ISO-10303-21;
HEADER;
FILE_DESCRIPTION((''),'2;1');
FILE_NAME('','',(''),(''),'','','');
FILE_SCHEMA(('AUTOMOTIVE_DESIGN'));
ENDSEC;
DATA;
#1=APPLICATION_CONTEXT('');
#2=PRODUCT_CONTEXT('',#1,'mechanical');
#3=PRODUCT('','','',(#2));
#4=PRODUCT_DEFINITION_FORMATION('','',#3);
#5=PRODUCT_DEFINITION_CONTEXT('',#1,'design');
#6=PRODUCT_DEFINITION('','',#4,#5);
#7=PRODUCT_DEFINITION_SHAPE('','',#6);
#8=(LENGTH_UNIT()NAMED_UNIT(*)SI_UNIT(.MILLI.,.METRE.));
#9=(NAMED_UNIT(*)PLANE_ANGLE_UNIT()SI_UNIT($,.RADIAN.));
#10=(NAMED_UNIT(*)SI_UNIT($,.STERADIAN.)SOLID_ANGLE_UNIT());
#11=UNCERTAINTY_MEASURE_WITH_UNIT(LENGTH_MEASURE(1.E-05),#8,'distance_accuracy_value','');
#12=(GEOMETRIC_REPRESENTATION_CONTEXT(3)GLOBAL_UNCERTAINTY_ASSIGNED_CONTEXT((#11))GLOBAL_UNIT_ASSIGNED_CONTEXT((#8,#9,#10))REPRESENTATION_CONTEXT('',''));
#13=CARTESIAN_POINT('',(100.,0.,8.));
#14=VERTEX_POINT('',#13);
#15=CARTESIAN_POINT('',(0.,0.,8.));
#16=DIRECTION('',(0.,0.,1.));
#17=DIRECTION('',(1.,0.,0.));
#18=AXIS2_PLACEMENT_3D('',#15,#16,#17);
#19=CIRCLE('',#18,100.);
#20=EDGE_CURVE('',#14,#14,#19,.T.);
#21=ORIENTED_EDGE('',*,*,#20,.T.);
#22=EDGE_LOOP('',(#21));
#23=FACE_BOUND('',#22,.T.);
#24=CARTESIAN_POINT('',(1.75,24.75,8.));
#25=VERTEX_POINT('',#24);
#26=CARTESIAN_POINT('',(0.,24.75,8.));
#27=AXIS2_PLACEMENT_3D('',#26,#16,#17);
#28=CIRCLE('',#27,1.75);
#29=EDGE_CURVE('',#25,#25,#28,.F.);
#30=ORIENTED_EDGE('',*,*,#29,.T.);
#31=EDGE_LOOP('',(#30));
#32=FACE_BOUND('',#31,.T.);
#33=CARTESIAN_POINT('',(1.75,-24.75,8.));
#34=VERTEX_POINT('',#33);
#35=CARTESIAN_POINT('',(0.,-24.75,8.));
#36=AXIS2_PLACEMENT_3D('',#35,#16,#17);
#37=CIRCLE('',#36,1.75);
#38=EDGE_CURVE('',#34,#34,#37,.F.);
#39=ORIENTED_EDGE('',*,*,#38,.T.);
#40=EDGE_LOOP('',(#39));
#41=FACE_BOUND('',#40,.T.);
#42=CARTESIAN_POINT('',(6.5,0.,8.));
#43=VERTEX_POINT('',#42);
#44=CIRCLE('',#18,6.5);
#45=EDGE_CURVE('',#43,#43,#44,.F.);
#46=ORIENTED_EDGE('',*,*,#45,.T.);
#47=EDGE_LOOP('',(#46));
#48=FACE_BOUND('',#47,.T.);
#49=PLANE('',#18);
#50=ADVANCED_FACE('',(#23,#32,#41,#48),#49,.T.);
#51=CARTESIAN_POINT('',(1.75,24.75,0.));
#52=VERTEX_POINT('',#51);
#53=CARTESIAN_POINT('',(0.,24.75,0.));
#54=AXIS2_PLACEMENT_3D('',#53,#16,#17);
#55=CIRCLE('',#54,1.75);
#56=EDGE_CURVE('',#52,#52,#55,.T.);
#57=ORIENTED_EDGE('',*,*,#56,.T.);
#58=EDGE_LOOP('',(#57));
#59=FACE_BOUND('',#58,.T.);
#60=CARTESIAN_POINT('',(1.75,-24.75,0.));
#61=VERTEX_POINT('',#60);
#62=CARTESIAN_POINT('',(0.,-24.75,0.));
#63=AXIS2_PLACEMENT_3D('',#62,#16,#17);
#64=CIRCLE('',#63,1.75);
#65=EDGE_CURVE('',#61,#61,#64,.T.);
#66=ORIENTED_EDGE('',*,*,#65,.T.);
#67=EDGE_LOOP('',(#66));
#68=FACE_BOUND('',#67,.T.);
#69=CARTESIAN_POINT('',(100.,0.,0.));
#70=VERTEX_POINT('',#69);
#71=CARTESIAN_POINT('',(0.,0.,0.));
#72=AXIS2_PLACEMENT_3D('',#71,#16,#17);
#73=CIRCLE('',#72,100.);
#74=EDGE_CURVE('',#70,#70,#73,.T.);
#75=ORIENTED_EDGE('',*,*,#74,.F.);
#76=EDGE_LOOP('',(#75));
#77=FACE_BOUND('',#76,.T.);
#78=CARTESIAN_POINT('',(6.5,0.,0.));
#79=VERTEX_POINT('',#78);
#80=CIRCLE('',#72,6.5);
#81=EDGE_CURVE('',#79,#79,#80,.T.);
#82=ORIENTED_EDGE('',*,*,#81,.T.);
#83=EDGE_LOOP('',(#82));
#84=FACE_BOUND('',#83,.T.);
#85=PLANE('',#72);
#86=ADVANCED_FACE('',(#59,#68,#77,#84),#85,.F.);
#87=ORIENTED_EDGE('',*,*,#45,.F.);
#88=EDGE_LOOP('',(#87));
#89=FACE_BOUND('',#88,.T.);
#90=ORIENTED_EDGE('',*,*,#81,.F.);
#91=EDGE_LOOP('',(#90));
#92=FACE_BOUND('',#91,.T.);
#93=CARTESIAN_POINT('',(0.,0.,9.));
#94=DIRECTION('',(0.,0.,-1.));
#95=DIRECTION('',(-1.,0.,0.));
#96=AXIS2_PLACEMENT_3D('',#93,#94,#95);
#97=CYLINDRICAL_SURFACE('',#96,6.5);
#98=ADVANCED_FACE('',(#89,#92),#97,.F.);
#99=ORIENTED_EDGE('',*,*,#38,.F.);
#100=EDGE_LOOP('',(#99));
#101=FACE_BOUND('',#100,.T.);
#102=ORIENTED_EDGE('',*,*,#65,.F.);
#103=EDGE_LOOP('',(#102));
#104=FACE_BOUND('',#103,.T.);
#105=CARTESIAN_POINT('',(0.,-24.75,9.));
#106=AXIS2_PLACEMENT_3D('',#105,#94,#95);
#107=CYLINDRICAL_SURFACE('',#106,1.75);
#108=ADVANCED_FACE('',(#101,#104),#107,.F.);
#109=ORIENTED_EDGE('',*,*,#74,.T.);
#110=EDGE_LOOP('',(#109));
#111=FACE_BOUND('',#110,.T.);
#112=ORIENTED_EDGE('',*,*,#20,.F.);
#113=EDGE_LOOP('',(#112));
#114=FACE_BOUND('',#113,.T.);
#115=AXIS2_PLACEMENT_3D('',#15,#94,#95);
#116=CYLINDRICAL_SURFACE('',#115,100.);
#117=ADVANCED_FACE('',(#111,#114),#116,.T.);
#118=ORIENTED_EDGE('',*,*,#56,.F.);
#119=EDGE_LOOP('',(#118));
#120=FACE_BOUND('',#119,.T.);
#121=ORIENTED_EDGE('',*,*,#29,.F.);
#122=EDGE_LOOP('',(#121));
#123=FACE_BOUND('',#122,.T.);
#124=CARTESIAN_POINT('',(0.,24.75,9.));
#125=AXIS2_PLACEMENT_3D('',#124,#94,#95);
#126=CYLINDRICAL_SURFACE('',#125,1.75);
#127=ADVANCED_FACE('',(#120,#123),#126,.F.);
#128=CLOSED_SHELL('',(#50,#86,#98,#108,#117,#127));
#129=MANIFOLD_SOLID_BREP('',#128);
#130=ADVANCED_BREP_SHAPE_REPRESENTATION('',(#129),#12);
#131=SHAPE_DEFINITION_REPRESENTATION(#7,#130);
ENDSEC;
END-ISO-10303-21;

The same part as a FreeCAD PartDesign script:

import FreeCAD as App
import Part
import Sketcher
Q = App.Units.Quantity

doc = App.newDocument("Part")
params = doc.addObject("Spreadsheet::Sheet", "Params")
for row, (alias, value) in enumerate([
    ("sketch1_diameter", "200 mm"),
    ("pad1_length", "8 mm"),
    ("sketch2_diameter", "13 mm"),
    ("sketch2_diameter2", "3.5 mm"),
    ("pocket1_length", "9 mm"),
], start=1):
    params.set(f"A{row}", alias)
    params.set(f"B{row}", "=" + value)
    params.setAlias(f"B{row}", alias)

body = doc.addObject("PartDesign::Body", "Body")

# Sketch on XY plane
sketch1 = body.newObject("Sketcher::SketchObject", "Sketch")
sketch1.AttachmentSupport = (doc.getObject("XY_Plane"), [""])
sketch1.MapMode = "FlatFace"
sketch1.addGeometry(Part.Circle(App.Vector(0, 0, 0), App.Vector(0, 0, 1), 100), False)
sketch1.addConstraint([
    Sketcher.Constraint("Coincident", 0, 3, -1, 1),
    Sketcher.Constraint("Diameter", 0, Q("200 mm")),
])
sketch1.setExpression("Constraints[1]", "Params.sketch1_diameter")
pad1 = body.newObject("PartDesign::Pad", "Pad")
pad1.Profile = sketch1
pad1.setExpression("Length", "Params.pad1_length")

# Sketch on XY plane
sketch2 = body.newObject("Sketcher::SketchObject", "Sketch001")
sketch2.AttachmentSupport = (doc.getObject("XY_Plane"), [""])
sketch2.MapMode = "FlatFace"
sketch2.addGeometry([
    Part.Circle(App.Vector(0, 24.8, 0), App.Vector(0, 0, 1), 1.8),
    Part.Circle(App.Vector(0, -24.8, 0), App.Vector(0, 0, 1), 1.8),
    Part.Circle(App.Vector(0, 0, 0), App.Vector(0, 0, 1), 6.5),
], False)
sketch2.addConstraint([
    Sketcher.Constraint("Coincident", 2, 3, -1, 1),
    Sketcher.Constraint("Equal", 0, 1),
    Sketcher.Constraint("Symmetric", 0, 3, 1, 3, -1, 1),
    Sketcher.Constraint("PointOnObject", 0, 3, -2),
    Sketcher.Constraint("Diameter", 2, Q("13 mm")),
    Sketcher.Constraint("Diameter", 0, Q("3.5 mm")),
    Sketcher.Constraint("DistanceY", 1, 3, 0, 3, Q("49.5 mm")),
])
sketch2.setExpression("Constraints[4]", "Params.sketch2_diameter")
sketch2.setExpression("Constraints[5]", "Params.sketch2_diameter2")
pocket1 = body.newObject("PartDesign::Pocket", "Pocket")
pocket1.Profile = sketch2
pocket1.setExpression("Length", "Params.pocket1_length")
pocket1.Reversed = True

doc.recompute()
